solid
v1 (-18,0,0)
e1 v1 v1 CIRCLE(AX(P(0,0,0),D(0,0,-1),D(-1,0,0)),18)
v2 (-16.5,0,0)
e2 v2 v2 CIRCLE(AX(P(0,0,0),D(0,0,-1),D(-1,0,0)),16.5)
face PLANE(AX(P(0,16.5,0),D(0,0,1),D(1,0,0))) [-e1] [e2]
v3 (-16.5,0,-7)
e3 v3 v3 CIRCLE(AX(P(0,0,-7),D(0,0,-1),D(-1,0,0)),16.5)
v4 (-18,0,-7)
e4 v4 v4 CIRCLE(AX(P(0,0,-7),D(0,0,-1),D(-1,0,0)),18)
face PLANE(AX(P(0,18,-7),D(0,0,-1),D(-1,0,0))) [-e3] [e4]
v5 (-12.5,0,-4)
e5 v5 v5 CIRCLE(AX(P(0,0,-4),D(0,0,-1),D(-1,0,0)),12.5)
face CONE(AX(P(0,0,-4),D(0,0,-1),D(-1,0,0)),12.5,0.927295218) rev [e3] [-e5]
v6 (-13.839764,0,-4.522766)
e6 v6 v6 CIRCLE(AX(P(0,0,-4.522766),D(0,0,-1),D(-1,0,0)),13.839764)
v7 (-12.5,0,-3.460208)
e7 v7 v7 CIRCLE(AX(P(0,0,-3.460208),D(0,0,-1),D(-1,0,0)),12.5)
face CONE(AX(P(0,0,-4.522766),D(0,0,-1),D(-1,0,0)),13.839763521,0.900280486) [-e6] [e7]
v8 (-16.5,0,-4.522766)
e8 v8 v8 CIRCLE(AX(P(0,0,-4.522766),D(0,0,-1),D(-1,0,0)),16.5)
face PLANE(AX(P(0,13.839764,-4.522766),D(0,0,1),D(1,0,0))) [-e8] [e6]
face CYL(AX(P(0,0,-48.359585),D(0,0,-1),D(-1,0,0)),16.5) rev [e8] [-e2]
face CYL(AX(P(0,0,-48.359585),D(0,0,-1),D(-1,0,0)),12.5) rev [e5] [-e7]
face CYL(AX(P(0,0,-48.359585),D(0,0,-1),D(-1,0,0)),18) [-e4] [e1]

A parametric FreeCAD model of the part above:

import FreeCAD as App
import Part
import Sketcher

V = App.Vector
Q = App.Units.Quantity

doc = App.newDocument("Part")
body = doc.addObject("PartDesign::Body", "Body")

sketch1 = body.newObject("Sketcher::SketchObject", "Sketch")
sketch1.AttachmentSupport = (doc.getObject("YZ_Plane"), [""])
sketch1.MapMode = "FlatFace"
sketch1.addGeometry([
    Part.LineSegment(V(18, 0, 0), V(16.5, 0, 0)),
    Part.LineSegment(V(16.5, 0, 0), V(16.5, -4.5, 0)),
    Part.LineSegment(V(16.5, -4.5, 0), V(13.8, -4.5, 0)),
    Part.LineSegment(V(13.8, -4.5, 0), V(12.5, -3.5, 0)),
    Part.LineSegment(V(12.5, -3.5, 0), V(12.5, -4, 0)),
    Part.LineSegment(V(12.5, -4, 0), V(16.5, -7, 0)),
    Part.LineSegment(V(16.5, -7, 0), V(18, -7, 0)),
    Part.LineSegment(V(18, -7, 0), V(18, 0, 0)),
], False)
sketch1.addConstraint([
    Sketcher.Constraint("Coincident", 0, 2, 1, 1),
    Sketcher.Constraint("Coincident", 1, 2, 2, 1),
    Sketcher.Constraint("Coincident", 2, 2, 3, 1),
    Sketcher.Constraint("Coincident", 3, 2, 4, 1),
    Sketcher.Constraint("Coincident", 4, 2, 5, 1),
    Sketcher.Constraint("Coincident", 5, 2, 6, 1),
    Sketcher.Constraint("Coincident", 6, 2, 7, 1),
    Sketcher.Constraint("Coincident", 7, 2, 0, 1),
    Sketcher.Constraint("Horizontal", 0),
    Sketcher.Constraint("Vertical", 1),
    Sketcher.Constraint("Horizontal", 2),
    Sketcher.Constraint("Vertical", 4),
    Sketcher.Constraint("Horizontal", 6),
    Sketcher.Constraint("Vertical", 7),
    Sketcher.Constraint("PointOnObject", 0, 2, -1),
    Sketcher.Constraint("Vertical", 1, 2, 5, 2),
    Sketcher.Constraint("DistanceY", 7, 1, 7, 2, Q("7 mm")),
    Sketcher.Constraint("Distance", 5, Q("5 mm")),
    Sketcher.Constraint("DistanceX", 0, 2, 0, 1, Q("1.5 mm")),
    Sketcher.Constraint("DistanceY", 4, 2, -1, 1, Q("4 mm")),
    Sketcher.Constraint("DistanceX", -1, 1, 6, 2, Q("18 mm")),
    Sketcher.Constraint("Distance", 3, Q("1.70997 mm")),
    Sketcher.Constraint("DistanceX", 2, 2, 2, 1, Q("2.660236 mm")),
    Sketcher.Constraint("DistanceY", 1, 2, 1, 1, Q("4.522766 mm")),
])
revolution = body.newObject("PartDesign::Revolution", "Revolution")
revolution.Profile = sketch1
revolution.ReferenceAxis = (sketch1, ["V_Axis"])
revolution.Angle = 360

doc.recompute()
